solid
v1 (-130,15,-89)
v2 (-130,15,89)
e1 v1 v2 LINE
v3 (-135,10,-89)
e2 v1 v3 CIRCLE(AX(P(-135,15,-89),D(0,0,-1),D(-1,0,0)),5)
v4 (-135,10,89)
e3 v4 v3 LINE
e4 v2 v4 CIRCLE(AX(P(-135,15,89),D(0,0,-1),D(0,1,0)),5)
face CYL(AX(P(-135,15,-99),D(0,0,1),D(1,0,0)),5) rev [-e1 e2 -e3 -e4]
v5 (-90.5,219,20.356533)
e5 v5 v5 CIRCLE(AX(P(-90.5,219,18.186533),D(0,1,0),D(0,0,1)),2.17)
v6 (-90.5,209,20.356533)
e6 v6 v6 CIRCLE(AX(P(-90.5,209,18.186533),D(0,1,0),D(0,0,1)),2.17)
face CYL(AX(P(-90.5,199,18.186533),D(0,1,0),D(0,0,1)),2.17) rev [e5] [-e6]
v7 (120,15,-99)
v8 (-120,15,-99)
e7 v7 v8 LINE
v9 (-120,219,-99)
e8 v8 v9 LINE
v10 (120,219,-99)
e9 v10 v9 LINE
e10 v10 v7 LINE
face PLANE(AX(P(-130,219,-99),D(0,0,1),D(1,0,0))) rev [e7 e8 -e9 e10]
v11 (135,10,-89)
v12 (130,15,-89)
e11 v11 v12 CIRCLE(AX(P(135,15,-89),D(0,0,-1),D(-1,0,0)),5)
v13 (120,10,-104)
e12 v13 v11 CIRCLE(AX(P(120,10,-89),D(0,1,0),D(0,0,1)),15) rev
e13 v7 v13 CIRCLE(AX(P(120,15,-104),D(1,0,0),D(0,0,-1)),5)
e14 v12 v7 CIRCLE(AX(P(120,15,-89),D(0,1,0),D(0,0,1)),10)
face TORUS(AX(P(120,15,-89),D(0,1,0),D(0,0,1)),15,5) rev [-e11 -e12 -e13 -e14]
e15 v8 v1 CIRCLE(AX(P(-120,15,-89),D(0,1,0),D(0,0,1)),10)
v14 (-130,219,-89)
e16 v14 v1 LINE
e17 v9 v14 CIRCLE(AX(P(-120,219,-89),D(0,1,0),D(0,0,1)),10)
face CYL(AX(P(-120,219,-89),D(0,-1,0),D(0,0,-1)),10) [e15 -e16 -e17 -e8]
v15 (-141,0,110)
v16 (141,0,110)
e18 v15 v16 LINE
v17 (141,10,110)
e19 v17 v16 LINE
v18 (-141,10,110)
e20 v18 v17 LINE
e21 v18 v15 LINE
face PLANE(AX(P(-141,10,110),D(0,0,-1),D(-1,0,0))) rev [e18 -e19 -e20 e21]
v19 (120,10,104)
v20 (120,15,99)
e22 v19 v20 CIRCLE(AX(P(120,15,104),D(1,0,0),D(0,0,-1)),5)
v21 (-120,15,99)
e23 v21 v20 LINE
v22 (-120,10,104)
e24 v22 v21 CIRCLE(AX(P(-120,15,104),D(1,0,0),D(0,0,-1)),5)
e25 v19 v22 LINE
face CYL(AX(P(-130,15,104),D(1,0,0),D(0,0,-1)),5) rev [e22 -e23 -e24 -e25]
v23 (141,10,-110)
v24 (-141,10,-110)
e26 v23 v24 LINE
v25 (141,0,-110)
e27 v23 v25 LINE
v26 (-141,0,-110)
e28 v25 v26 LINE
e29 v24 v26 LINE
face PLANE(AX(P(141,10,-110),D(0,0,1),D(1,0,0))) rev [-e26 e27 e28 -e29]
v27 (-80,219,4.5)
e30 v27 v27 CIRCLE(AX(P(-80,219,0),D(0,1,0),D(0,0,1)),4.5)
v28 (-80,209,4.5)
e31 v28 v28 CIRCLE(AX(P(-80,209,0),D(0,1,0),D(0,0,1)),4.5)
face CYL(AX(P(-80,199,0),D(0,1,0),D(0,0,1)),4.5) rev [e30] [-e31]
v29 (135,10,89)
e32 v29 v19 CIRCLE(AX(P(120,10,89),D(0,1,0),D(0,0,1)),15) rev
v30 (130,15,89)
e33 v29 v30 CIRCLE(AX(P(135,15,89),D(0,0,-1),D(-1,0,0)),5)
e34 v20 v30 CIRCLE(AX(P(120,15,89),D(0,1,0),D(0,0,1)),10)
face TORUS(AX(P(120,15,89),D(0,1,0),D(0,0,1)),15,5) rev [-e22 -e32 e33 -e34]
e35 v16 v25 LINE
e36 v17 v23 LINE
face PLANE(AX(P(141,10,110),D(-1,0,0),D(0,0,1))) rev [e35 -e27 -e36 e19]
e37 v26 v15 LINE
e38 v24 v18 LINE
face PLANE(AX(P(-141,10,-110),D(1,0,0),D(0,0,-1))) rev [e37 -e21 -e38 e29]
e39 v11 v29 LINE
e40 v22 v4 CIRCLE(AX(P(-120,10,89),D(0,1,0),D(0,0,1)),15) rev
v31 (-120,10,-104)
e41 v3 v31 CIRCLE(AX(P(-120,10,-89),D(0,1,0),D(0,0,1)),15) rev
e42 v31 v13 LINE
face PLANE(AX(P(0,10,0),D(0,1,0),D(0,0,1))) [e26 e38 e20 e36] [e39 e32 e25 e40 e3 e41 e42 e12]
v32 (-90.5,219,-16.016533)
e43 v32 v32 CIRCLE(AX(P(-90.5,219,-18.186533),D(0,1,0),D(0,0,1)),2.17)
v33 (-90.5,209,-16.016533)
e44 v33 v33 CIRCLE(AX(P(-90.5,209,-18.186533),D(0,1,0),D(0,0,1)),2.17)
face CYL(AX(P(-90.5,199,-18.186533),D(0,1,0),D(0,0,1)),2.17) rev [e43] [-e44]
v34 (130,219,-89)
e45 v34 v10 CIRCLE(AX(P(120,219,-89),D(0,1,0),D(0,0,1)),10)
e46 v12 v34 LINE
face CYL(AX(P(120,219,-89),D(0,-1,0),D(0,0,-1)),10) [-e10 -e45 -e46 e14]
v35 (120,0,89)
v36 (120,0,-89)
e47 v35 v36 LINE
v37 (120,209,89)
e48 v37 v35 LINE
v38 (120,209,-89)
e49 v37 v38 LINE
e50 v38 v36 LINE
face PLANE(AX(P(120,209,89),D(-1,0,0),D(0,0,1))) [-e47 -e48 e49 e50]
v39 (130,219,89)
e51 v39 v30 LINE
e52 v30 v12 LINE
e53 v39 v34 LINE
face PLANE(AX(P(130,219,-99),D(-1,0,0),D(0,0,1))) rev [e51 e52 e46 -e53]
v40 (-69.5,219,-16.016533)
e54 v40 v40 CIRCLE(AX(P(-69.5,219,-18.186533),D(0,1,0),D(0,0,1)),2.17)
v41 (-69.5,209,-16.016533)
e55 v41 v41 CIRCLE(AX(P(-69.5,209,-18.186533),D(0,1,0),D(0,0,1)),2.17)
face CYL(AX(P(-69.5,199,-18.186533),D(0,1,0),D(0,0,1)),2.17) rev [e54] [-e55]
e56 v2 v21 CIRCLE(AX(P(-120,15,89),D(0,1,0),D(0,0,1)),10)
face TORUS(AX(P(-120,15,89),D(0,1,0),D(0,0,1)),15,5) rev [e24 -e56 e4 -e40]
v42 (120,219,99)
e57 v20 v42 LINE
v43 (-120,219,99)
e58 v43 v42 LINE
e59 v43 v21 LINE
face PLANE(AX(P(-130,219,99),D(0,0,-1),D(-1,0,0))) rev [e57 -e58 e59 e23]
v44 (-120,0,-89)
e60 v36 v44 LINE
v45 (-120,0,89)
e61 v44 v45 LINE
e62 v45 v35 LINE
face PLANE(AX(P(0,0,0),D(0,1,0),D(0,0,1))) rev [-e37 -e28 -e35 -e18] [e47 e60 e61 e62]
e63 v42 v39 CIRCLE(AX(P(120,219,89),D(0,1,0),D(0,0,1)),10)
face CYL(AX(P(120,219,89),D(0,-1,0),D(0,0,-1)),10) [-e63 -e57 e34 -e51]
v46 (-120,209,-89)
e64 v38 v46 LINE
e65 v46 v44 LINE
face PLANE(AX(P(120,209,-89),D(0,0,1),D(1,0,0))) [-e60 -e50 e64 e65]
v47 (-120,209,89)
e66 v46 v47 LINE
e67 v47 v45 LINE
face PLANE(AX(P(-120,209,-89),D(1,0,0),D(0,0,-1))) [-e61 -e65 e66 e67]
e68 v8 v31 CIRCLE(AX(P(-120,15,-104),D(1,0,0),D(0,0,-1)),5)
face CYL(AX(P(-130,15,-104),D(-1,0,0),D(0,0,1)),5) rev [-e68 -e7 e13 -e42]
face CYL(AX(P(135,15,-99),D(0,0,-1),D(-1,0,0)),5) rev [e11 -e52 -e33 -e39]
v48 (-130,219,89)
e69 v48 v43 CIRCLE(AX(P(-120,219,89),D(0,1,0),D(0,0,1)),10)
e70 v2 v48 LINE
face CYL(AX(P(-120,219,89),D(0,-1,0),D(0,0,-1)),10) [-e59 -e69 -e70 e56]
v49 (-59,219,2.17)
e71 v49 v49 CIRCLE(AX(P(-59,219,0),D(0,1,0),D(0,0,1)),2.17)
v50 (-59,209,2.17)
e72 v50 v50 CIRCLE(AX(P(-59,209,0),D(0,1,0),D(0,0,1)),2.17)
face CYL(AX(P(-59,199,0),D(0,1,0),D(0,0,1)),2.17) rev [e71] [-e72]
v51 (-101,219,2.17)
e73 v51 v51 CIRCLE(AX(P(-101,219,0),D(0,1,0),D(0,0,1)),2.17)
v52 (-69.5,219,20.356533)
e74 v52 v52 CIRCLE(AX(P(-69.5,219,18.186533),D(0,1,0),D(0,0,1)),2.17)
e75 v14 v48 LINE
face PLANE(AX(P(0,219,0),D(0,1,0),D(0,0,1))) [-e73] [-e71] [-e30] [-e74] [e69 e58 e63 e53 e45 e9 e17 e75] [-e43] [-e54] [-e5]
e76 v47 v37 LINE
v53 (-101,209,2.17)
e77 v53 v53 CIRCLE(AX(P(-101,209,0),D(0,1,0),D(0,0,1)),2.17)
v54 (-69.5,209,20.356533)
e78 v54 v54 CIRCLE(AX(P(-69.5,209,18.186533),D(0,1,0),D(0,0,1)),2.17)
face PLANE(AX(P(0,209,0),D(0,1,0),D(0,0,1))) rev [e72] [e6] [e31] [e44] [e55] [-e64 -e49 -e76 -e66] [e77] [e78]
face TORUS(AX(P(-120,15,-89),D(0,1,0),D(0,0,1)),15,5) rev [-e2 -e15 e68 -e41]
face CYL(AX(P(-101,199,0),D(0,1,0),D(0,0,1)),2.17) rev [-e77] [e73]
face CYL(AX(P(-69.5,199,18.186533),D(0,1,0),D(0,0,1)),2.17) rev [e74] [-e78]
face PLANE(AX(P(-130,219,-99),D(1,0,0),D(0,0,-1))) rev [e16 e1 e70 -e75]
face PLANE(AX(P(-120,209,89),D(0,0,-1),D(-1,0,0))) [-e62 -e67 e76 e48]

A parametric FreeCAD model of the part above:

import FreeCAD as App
import Part
import Sketcher
Q = App.Units.Quantity


def edges_at(feature, points):
    """Names of the edges that pass closest to the given points."""
    edges = feature.Shape.Edges
    near = lambda p: min(range(len(edges)), key=lambda i: edges[i].distToShape(Part.Vertex(*p))[0])
    return sorted({f"Edge{near(p) + 1}" for p in points})

doc = App.newDocument("Part")
body = doc.addObject("PartDesign::Body", "Body")

# Sketch on XZ plane
sketch1 = body.newObject("Sketcher::SketchObject", "Sketch")
sketch1.AttachmentSupport = (doc.getObject("XZ_Plane"), [""])
sketch1.MapMode = "FlatFace"
sketch1.addGeometry([
    Part.LineSegment(App.Vector(-130, -99, 0), App.Vector(-130, 99, 0)),
    Part.LineSegment(App.Vector(-130, 99, 0), App.Vector(130, 99, 0)),
    Part.LineSegment(App.Vector(130, 99, 0), App.Vector(130, -99, 0)),
    Part.LineSegment(App.Vector(130, -99, 0), App.Vector(-130, -99, 0)),
], False)
sketch1.addConstraint([
    Sketcher.Constraint("Coincident", 0, 2, 1, 1),
    Sketcher.Constraint("Coincident", 1, 2, 2, 1),
    Sketcher.Constraint("Coincident", 2, 2, 3, 1),
    Sketcher.Constraint("Coincident", 3, 2, 0, 1),
    Sketcher.Constraint("Vertical", 0),
    Sketcher.Constraint("Horizontal", 1),
    Sketcher.Constraint("Vertical", 2),
    Sketcher.Constraint("Horizontal", 3),
    Sketcher.Constraint("Symmetric", 0, 2, 2, 2, -1, 1),
    Sketcher.Constraint("DistanceX", 1, 1, 1, 2, Q("260 mm")),
    Sketcher.Constraint("DistanceY", 0, 1, 0, 2, Q("198 mm")),
])
pad1 = body.newObject("PartDesign::Pad", "Pad")
pad1.Profile = sketch1
pad1.Length = 219
pad1.Reversed = True

# Sketch on XZ plane
sketch2 = body.newObject("Sketcher::SketchObject", "Sketch001")
sketch2.AttachmentSupport = (doc.getObject("XZ_Plane"), [""])
sketch2.MapMode = "FlatFace"
sketch2.addGeometry([
    Part.LineSegment(App.Vector(-120, -89, 0), App.Vector(-120, 89, 0)),
    Part.LineSegment(App.Vector(-120, 89, 0), App.Vector(120, 89, 0)),
    Part.LineSegment(App.Vector(120, 89, 0), App.Vector(120, -89, 0)),
    Part.LineSegment(App.Vector(120, -89, 0), App.Vector(-120, -89, 0)),
], False)
sketch2.addConstraint([
    Sketcher.Constraint("Coincident", 0, 2, 1, 1),
    Sketcher.Constraint("Coincident", 1, 2, 2, 1),
    Sketcher.Constraint("Coincident", 2, 2, 3, 1),
    Sketcher.Constraint("Coincident", 3, 2, 0, 1),
    Sketcher.Constraint("Vertical", 0),
    Sketcher.Constraint("Horizontal", 1),
    Sketcher.Constraint("Vertical", 2),
    Sketcher.Constraint("Horizontal", 3),
    Sketcher.Constraint("Symmetric", 0, 2, 2, 2, -1, 1),
    Sketcher.Constraint("DistanceX", 1, 1, 1, 2, Q("240 mm")),
    Sketcher.Constraint("DistanceY", 0, 1, 0, 2, Q("178 mm")),
])
pocket1 = body.newObject("PartDesign::Pocket", "Pocket")
pocket1.Profile = sketch2
pocket1.Length = 209

# Sketch on XZ plane
sketch3 = body.newObject("Sketcher::SketchObject", "Sketch002")
sketch3.AttachmentSupport = (doc.getObject("XZ_Plane"), [""])
sketch3.MapMode = "FlatFace"
sketch3.addGeometry([
    Part.LineSegment(App.Vector(-141, -110, 0), App.Vector(-141, 110, 0)),  # 0
    Part.LineSegment(App.Vector(-141, 110, 0), App.Vector(141, 110, 0)),  # 1
    Part.LineSegment(App.Vector(141, 110, 0), App.Vector(141, -110, 0)),  # 2
    Part.LineSegment(App.Vector(141, -110, 0), App.Vector(-141, -110, 0)),  # 3
    Part.LineSegment(App.Vector(130, 99, 0), App.Vector(-130, 99, 0)),  # 4
    Part.LineSegment(App.Vector(-130, 99, 0), App.Vector(-130, -99, 0)),  # 5
    Part.LineSegment(App.Vector(-130, -99, 0), App.Vector(130, -99, 0)),  # 6
    Part.LineSegment(App.Vector(130, -99, 0), App.Vector(130, 99, 0)),  # 7
], False)
sketch3.addConstraint([
    Sketcher.Constraint("Coincident", 0, 2, 1, 1),
    Sketcher.Constraint("Coincident", 1, 2, 2, 1),
    Sketcher.Constraint("Coincident", 2, 2, 3, 1),
    Sketcher.Constraint("Coincident", 3, 2, 0, 1),
    Sketcher.Constraint("Coincident", 4, 2, 5, 1),
    Sketcher.Constraint("Coincident", 5, 2, 6, 1),
    Sketcher.Constraint("Coincident", 6, 2, 7, 1),
    Sketcher.Constraint("Coincident", 7, 2, 4, 1),
    Sketcher.Constraint("Vertical", 0),
    Sketcher.Constraint("Horizontal", 1),
    Sketcher.Constraint("Vertical", 2),
    Sketcher.Constraint("Horizontal", 3),
    Sketcher.Constraint("Horizontal", 4),
    Sketcher.Constraint("Vertical", 5),
    Sketcher.Constraint("Horizontal", 6),
    Sketcher.Constraint("Vertical", 7),
    Sketcher.Constraint("Symmetric", 0, 2, 2, 2, -1, 1),
    Sketcher.Constraint("Symmetric", 4, 2, 6, 2, -1, 1),
    Sketcher.Constraint("DistanceX", 1, 1, 1, 2, Q("282 mm")),
    Sketcher.Constraint("DistanceX", 4, 2, 4, 1, Q("260 mm")),
    Sketcher.Constraint("DistanceY", 0, 1, 0, 2, Q("220 mm")),
    Sketcher.Constraint("DistanceY", 5, 2, 5, 1, Q("198 mm")),
])
pad2 = body.newObject("PartDesign::Pad", "Pad001")
pad2.Profile = sketch3
pad2.Length = 10
pad2.Reversed = True
doc.recompute()

fillet = body.newObject("PartDesign::Fillet", "Fillet")
fillet.Base = (pad2, edges_at(pad2, [
    (-130, 114.5, -99),
    (130, 114.5, -99),
    (130, 114.5, 99),
    (-130, 114.5, 99),
]))
fillet.Radius = 10
doc.recompute()

fillet2 = body.newObject("PartDesign::Fillet", "Fillet001")
fillet2.Base = (fillet, edges_at(fillet, [
    (0, 10, -99),
    (130, 10, 0),
    (0, 10, 99),
    (-130, 10, 0),
    (127.071, 10, -96.071),
    (127.071, 10, 96.071),
    (-127.071, 10, -96.071),
    (-127.071, 10, 96.071),
]))
fillet2.Radius = 5

# Sketch on XZ plane
sketch4 = body.newObject("Sketcher::SketchObject", "Sketch003")
sketch4.AttachmentSupport = (doc.getObject("XZ_Plane"), [""])
sketch4.MapMode = "FlatFace"
sketch4.AttachmentOffset = App.Placement(App.Vector(0, 0, -219), App.Rotation())
sketch4.addGeometry([
    Part.Circle(App.Vector(-59, 0, 0), App.Vector(0, 0, 1), 2.2),  # 0
    Part.Circle(App.Vector(-69.5, 18.2, 0), App.Vector(0, 0, 1), 2.2),  # 1
    Part.Circle(App.Vector(-90.5, 18.2, 0), App.Vector(0, 0, 1), 2.2),  # 2
    Part.Circle(App.Vector(-101, 0, 0), App.Vector(0, 0, 1), 2.2),  # 3
    Part.Circle(App.Vector(-90.5, -18.2, 0), App.Vector(0, 0, 1), 2.2),  # 4
    Part.Circle(App.Vector(-69.5, -18.2, 0), App.Vector(0, 0, 1), 2.2),  # 5
    Part.Circle(App.Vector(-80, 0, 0), App.Vector(0, 0, 1), 4.5),  # 6
], False)
sketch4.addConstraint([
    Sketcher.Constraint("Equal", 0, 1),
    Sketcher.Constraint("Equal", 1, 2),
    Sketcher.Constraint("Equal", 2, 3),
    Sketcher.Constraint("Equal", 3, 4),
    Sketcher.Constraint("Equal", 4, 5),
    Sketcher.Constraint("Symmetric", 2, 3, 4, 3, -1),
    Sketcher.Constraint("Symmetric", 1, 3, 5, 3, -1),
    Sketcher.Constraint("PointOnObject", 0, 3, -1),
    Sketcher.Constraint("PointOnObject", 3, 3, -1),
    Sketcher.Constraint("PointOnObject", 6, 3, -1),
    Sketcher.Constraint("Horizontal", 1, 3, 2, 3),
    Sketcher.Constraint("Diameter", 6, Q("9 mm")),
    Sketcher.Constraint("Diameter", 0, Q("4.34 mm")),
    Sketcher.Constraint("DistanceX", 0, 3, -1, 1, Q("59 mm")),
    Sketcher.Constraint("DistanceX", 3, 3, -1, 1, Q("101 mm")),
    Sketcher.Constraint("DistanceX", 6, 3, -1, 1, Q("80 mm")),
    Sketcher.Constraint("DistanceX", 2, 3, 1, 3, Q("21 mm")),
    Sketcher.Constraint("DistanceX", 1, 3, -1, 1, Q("69.5 mm")),
    Sketcher.Constraint("DistanceY", -1, 1, 1, 3, Q("18.186533 mm")),
])
pocket2 = body.newObject("PartDesign::Pocket", "Pocket001")
pocket2.Profile = sketch4
pocket2.Length = 20
pocket2.Reversed = True

doc.recompute()
